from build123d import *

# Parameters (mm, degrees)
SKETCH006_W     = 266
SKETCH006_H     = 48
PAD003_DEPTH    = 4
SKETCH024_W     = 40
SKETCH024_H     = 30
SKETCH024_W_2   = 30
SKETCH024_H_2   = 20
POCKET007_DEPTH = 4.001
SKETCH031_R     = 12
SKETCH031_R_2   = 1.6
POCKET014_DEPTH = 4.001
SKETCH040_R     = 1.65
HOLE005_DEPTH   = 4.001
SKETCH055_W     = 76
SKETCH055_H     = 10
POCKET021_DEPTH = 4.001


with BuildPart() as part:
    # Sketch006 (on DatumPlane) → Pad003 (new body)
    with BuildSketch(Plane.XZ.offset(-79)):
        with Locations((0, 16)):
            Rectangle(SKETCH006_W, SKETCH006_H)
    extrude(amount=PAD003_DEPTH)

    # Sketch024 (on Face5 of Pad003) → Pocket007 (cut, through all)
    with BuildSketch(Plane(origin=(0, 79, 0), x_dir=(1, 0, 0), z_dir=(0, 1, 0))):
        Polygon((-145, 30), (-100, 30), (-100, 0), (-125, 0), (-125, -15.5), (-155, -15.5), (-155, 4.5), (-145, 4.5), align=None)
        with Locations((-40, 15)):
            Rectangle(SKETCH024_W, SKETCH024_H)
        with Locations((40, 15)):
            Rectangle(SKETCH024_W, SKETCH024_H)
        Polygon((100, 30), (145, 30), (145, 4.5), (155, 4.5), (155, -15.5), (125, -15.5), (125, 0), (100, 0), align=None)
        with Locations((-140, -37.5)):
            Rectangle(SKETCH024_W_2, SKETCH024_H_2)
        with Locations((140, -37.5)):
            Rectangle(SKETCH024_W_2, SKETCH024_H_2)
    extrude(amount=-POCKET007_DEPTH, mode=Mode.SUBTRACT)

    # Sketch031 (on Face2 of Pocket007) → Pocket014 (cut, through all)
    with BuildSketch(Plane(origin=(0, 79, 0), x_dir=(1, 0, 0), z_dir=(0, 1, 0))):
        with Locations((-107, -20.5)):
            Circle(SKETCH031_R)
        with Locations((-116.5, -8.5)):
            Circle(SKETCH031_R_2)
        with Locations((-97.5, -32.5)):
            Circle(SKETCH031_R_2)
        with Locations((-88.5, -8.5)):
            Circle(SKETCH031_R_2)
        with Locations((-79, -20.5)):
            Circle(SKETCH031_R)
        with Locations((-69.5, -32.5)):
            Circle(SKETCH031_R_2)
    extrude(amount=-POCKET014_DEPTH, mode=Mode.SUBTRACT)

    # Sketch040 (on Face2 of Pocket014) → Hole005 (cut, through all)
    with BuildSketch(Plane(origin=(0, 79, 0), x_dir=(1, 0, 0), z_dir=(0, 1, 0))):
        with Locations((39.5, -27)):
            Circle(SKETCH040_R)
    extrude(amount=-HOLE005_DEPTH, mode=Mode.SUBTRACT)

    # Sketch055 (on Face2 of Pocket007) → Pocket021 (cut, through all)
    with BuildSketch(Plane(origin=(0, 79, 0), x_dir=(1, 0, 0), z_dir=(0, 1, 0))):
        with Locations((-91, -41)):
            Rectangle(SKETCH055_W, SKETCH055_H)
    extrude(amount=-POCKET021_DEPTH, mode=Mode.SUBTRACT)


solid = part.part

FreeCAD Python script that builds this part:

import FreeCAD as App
import Part
import Sketcher

V = App.Vector
Q = App.Units.Quantity


def add_polygon(sketch, points):
    """Adds a closed chain of lines whose ends are joined by coincident constraints."""
    first, n = sketch.GeometryCount, len(points)
    for a, b in zip(points, points[1:] + points[:1]):
        sketch.addGeometry(Part.LineSegment(App.Vector(*a, 0), App.Vector(*b, 0)), False)
    for i in range(n):
        sketch.addConstraint(Sketcher.Constraint("Coincident", first + i, 2, first + (i + 1) % n, 1))

doc = App.newDocument("Part")
body = doc.addObject("PartDesign::Body", "Body")

# Sketch on XZ plane
sketch1 = body.newObject("Sketcher::SketchObject", "Sketch")
sketch1.AttachmentSupport = (doc.getObject("XZ_Plane"), [""])
sketch1.MapMode = "FlatFace"
sketch1.AttachmentOffset = App.Placement(V(0, 0, -79), App.Rotation())
add_polygon(sketch1, [(-133, 40), (-133, -8), (133, -8), (133, 40)])  # lines 0-3
sketch1.addConstraint(Sketcher.Constraint("Vertical", 0))
sketch1.addConstraint(Sketcher.Constraint("Horizontal", 1))
sketch1.addConstraint(Sketcher.Constraint("Vertical", 2))
sketch1.addConstraint(Sketcher.Constraint("Horizontal", 3))
sketch1.addConstraint(Sketcher.Constraint("DistanceX", 1, 1, 1, 2, Q("266 mm")))
sketch1.addConstraint(Sketcher.Constraint("DistanceY", 0, 2, 0, 1, Q("48 mm")))
sketch1.addConstraint(Sketcher.Constraint("DistanceX", 0, 2, -1, 1, Q("133 mm")))
sketch1.addConstraint(Sketcher.Constraint("DistanceY", 0, 2, -1, 1, Q("8 mm")))
pad1 = body.newObject("PartDesign::Pad", "Pad")
pad1.Profile = sketch1
pad1.Length = 4

# Sketch on XZ plane
sketch2 = body.newObject("Sketcher::SketchObject", "Sketch001")
sketch2.AttachmentSupport = (doc.getObject("XZ_Plane"), [""])
sketch2.MapMode = "FlatFace"
sketch2.AttachmentOffset = App.Placement(V(0, 0, -79), App.Rotation())
add_polygon(sketch2, [(-100, -30), (-145, -30), (-145, -4), (-155, -4), (-155, 16), (-125, 16), (-125, 0), (-100, 0)])  # lines 0-7
add_polygon(sketch2, [(-60, -30), (-60, 0), (-20, 0), (-20, -30)])  # lines 8-11
add_polygon(sketch2, [(20, -30), (20, 0), (60, 0), (60, -30)])  # lines 12-15
add_polygon(sketch2, [(145, -30), (100, -30), (100, 0), (125, 0), (125, 16), (155, 16), (155, -4), (145, -4)])  # lines 16-23
add_polygon(sketch2, [(-155, 28), (-155, 48), (-125, 48), (-125, 28)])  # lines 24-27
add_polygon(sketch2, [(125, 28), (125, 48), (155, 48), (155, 28)])  # lines 28-31
sketch2.addConstraint(Sketcher.Constraint("Horizontal", 0))
sketch2.addConstraint(Sketcher.Constraint("Vertical", 1))
sketch2.addConstraint(Sketcher.Constraint("Horizontal", 2))
sketch2.addConstraint(Sketcher.Constraint("Vertical", 3))
sketch2.addConstraint(Sketcher.Constraint("Horizontal", 4))
sketch2.addConstraint(Sketcher.Constraint("Vertical", 5))
sketch2.addConstraint(Sketcher.Constraint("Horizontal", 6))
sketch2.addConstraint(Sketcher.Constraint("Vertical", 7))
sketch2.addConstraint(Sketcher.Constraint("Vertical", 8))
sketch2.addConstraint(Sketcher.Constraint("Horizontal", 9))
sketch2.addConstraint(Sketcher.Constraint("Vertical", 10))
sketch2.addConstraint(Sketcher.Constraint("Horizontal", 11))
sketch2.addConstraint(Sketcher.Constraint("Vertical", 12))
sketch2.addConstraint(Sketcher.Constraint("Horizontal", 13))
sketch2.addConstraint(Sketcher.Constraint("Vertical", 14))
sketch2.addConstraint(Sketcher.Constraint("Horizontal", 15))
sketch2.addConstraint(Sketcher.Constraint("Horizontal", 16))
sketch2.addConstraint(Sketcher.Constraint("Vertical", 17))
sketch2.addConstraint(Sketcher.Constraint("Horizontal", 18))
sketch2.addConstraint(Sketcher.Constraint("Vertical", 19))
sketch2.addConstraint(Sketcher.Constraint("Horizontal", 20))
sketch2.addConstraint(Sketcher.Constraint("Vertical", 21))
sketch2.addConstraint(Sketcher.Constraint("Horizontal", 22))
sketch2.addConstraint(Sketcher.Constraint("Vertical", 23))
sketch2.addConstraint(Sketcher.Constraint("Vertical", 24))
sketch2.addConstraint(Sketcher.Constraint("Horizontal", 25))
sketch2.addConstraint(Sketcher.Constraint("Vertical", 26))
sketch2.addConstraint(Sketcher.Constraint("Horizontal", 27))
sketch2.addConstraint(Sketcher.Constraint("Vertical", 28))
sketch2.addConstraint(Sketcher.Constraint("Horizontal", 29))
sketch2.addConstraint(Sketcher.Constraint("Vertical", 30))
sketch2.addConstraint(Sketcher.Constraint("Horizontal", 31))
sketch2.addConstraint(Sketcher.Constraint("Symmetric", 9, 2, 12, 2, -1, 1))
sketch2.addConstraint(Sketcher.Constraint("Symmetric", 6, 2, 17, 2, -1, 1))
sketch2.addConstraint(Sketcher.Constraint("Symmetric", 8, 2, 13, 2, -2))
sketch2.addConstraint(Sketcher.Constraint("Symmetric", 5, 2, 18, 2, -2))
sketch2.addConstraint(Sketcher.Constraint("Symmetric", 3, 2, 20, 2, -2))
sketch2.addConstraint(Sketcher.Constraint("Symmetric", 1, 2, 22, 2, -2))
sketch2.addConstraint(Sketcher.Constraint("Symmetric", 25, 2, 28, 2, -2))
sketch2.addConstraint(Sketcher.Constraint("Symmetric", 27, 2, 30, 2, -2))
sketch2.addConstraint(Sketcher.Constraint("Horizontal", 7, 2, 10, 2))
sketch2.addConstraint(Sketcher.Constraint("Horizontal", 11, 2, 14, 2))
sketch2.addConstraint(Sketcher.Constraint("Horizontal", 15, 2, 16, 2))
sketch2.addConstraint(Sketcher.Constraint("Vertical", 3, 2, 24, 2))
sketch2.addConstraint(Sketcher.Constraint("Vertical", 5, 2, 25, 2))
sketch2.addConstraint(Sketcher.Constraint("Equal", 31, 7))
sketch2.addConstraint(Sketcher.Constraint("Equal", 21, 24))
sketch2.addConstraint(Sketcher.Constraint("DistanceX", 0, 2, 0, 1, Q("45 mm")))
sketch2.addConstraint(Sketcher.Constraint("DistanceX", 2, 2, 2, 1, Q("10 mm")))
sketch2.addConstraint(Sketcher.Constraint("DistanceX", 4, 1, 4, 2, Q("30 mm")))
sketch2.addConstraint(Sketcher.Constraint("DistanceX", 9, 1, 9, 2, Q("40 mm")))
sketch2.addConstraint(Sketcher.Constraint("DistanceY", 3, 1, 3, 2, Q("20 mm")))
sketch2.addConstraint(Sketcher.Constraint("DistanceY", 1, 1, 1, 2, Q("25.5 mm")))
sketch2.addConstraint(Sketcher.Constraint("DistanceX", 0, 2, -1, 1, Q("145 mm")))
sketch2.addConstraint(Sketcher.Constraint("DistanceX", 8, 2, -1, 1, Q("60 mm")))
sketch2.addConstraint(Sketcher.Constraint("DistanceY", 3, 2, 24, 2, Q("32 mm")))
pocket1 = body.newObject("PartDesign::Pocket", "Pocket")
pocket1.Profile = sketch2
pocket1.Type = "ThroughAll"
pocket1.Reversed = True

# Sketch on XZ plane
sketch3 = body.newObject("Sketcher::SketchObject", "Sketch002")
sketch3.AttachmentSupport = (doc.getObject("XZ_Plane"), [""])
sketch3.MapMode = "FlatFace"
sketch3.AttachmentOffset = App.Placement(V(0, 0, -79), App.Rotation())
sketch3.addGeometry(Part.Circle(V(-107, 20.5, 0), V(0, 0, 1), 12), False)
sketch3.addGeometry(Part.Circle(V(-116.5, 8.5, 0), V(0, 0, 1), 1.6), False)
sketch3.addGeometry(Part.Circle(V(-97.5, 32.5, 0), V(0, 0, 1), 1.6), False)
sketch3.addGeometry(Part.Circle(V(-88.5, 8.5, 0), V(0, 0, 1), 1.6), False)
sketch3.addGeometry(Part.Circle(V(-79, 20.5, 0), V(0, 0, 1), 12), False)
sketch3.addGeometry(Part.Circle(V(-69.5, 32.5, 0), V(0, 0, 1), 1.6), False)
sketch3.addConstraint(Sketcher.Constraint("Equal", 1, 2))
sketch3.addConstraint(Sketcher.Constraint("Equal", 2, 3))
sketch3.addConstraint(Sketcher.Constraint("Equal", 0, 4))
sketch3.addConstraint(Sketcher.Constraint("Equal", 3, 5))
sketch3.addConstraint(Sketcher.Constraint("Horizontal", 1, 3, 3, 3))
sketch3.addConstraint(Sketcher.Constraint("Horizontal", 0, 3, 4, 3))
sketch3.addConstraint(Sketcher.Constraint("Horizontal", 2, 3, 5, 3))
sketch3.addConstraint(Sketcher.Constraint("Diameter", 0, Q("24 mm")))
sketch3.addConstraint(Sketcher.Constraint("Diameter", 1, Q("3.2 mm")))
sketch3.addConstraint(Sketcher.Constraint("DistanceX", 0, 3, -1, 1, Q("107 mm")))
sketch3.addConstraint(Sketcher.Constraint("DistanceX", 4, 3, -1, 1, Q("79 mm")))
sketch3.addConstraint(Sketcher.Constraint("DistanceY", 1, 3, 0, 3, Q("12 mm")))
sketch3.addConstraint(Sketcher.Constraint("DistanceY", 0, 3, 2, 3, Q("12 mm")))
sketch3.addConstraint(Sketcher.Constraint("DistanceX", 1, 3, 2, 3, Q("19 mm")))
sketch3.addConstraint(Sketcher.Constraint("DistanceX", 2, 3, 3, 3, Q("9 mm")))
sketch3.addConstraint(Sketcher.Constraint("DistanceX", 2, 3, 5, 3, Q("28 mm")))
sketch3.addConstraint(Sketcher.Constraint("DistanceY", -1, 1, 0, 3, Q("20.5 mm")))
sketch3.addConstraint(Sketcher.Constraint("DistanceX", 1, 3, -1, 1, Q("116.5 mm")))
pocket2 = body.newObject("PartDesign::Pocket", "Pocket001")
pocket2.Profile = sketch3
pocket2.Type = "ThroughAll"
pocket2.Reversed = True

# Sketch on XZ plane
sketch4 = body.newObject("Sketcher::SketchObject", "Sketch003")
sketch4.AttachmentSupport = (doc.getObject("XZ_Plane"), [""])
sketch4.MapMode = "FlatFace"
sketch4.AttachmentOffset = App.Placement(V(0, 0, -79), App.Rotation())
sketch4.addGeometry(Part.Circle(V(39.5, 27, 0), V(0, 0, 1), 1.6), False)
sketch4.addConstraint(Sketcher.Constraint("Diameter", 0, Q("3.3 mm")))
sketch4.addConstraint(Sketcher.Constraint("DistanceY", -1, 1, 0, 3, Q("27 mm")))
sketch4.addConstraint(Sketcher.Constraint("DistanceX", -1, 1, 0, 3, Q("39.5 mm")))
pocket3 = body.newObject("PartDesign::Pocket", "Pocket002")
pocket3.Profile = sketch4
pocket3.Type = "ThroughAll"
pocket3.Reversed = True

# Sketch on XZ plane
sketch5 = body.newObject("Sketcher::SketchObject", "Sketch004")
sketch5.AttachmentSupport = (doc.getObject("XZ_Plane"), [""])
sketch5.MapMode = "FlatFace"
sketch5.AttachmentOffset = App.Placement(V(0, 0, -79), App.Rotation())
add_polygon(sketch5, [(-129, 36), (-129, 46), (-53, 46), (-53, 36)])  # lines 0-3
sketch5.addConstraint(Sketcher.Constraint("Vertical", 0))
sketch5.addConstraint(Sketcher.Constraint("Horizontal", 1))
sketch5.addConstraint(Sketcher.Constraint("Vertical", 2))
sketch5.addConstraint(Sketcher.Constraint("Horizontal", 3))
sketch5.addConstraint(Sketcher.Constraint("DistanceX", 1, 1, 1, 2, Q("76 mm")))
sketch5.addConstraint(Sketcher.Constraint("DistanceY", 0, 1, 0, 2, Q("10 mm")))
sketch5.addConstraint(Sketcher.Constraint("DistanceX", 0, 2, -1, 1, Q("129 mm")))
sketch5.addConstraint(Sketcher.Constraint("DistanceY", -1, 1, 0, 2, Q("46 mm")))
pocket4 = body.newObject("PartDesign::Pocket", "Pocket003")
pocket4.Profile = sketch5
pocket4.Type = "ThroughAll"
pocket4.Reversed = True

doc.recompute()
